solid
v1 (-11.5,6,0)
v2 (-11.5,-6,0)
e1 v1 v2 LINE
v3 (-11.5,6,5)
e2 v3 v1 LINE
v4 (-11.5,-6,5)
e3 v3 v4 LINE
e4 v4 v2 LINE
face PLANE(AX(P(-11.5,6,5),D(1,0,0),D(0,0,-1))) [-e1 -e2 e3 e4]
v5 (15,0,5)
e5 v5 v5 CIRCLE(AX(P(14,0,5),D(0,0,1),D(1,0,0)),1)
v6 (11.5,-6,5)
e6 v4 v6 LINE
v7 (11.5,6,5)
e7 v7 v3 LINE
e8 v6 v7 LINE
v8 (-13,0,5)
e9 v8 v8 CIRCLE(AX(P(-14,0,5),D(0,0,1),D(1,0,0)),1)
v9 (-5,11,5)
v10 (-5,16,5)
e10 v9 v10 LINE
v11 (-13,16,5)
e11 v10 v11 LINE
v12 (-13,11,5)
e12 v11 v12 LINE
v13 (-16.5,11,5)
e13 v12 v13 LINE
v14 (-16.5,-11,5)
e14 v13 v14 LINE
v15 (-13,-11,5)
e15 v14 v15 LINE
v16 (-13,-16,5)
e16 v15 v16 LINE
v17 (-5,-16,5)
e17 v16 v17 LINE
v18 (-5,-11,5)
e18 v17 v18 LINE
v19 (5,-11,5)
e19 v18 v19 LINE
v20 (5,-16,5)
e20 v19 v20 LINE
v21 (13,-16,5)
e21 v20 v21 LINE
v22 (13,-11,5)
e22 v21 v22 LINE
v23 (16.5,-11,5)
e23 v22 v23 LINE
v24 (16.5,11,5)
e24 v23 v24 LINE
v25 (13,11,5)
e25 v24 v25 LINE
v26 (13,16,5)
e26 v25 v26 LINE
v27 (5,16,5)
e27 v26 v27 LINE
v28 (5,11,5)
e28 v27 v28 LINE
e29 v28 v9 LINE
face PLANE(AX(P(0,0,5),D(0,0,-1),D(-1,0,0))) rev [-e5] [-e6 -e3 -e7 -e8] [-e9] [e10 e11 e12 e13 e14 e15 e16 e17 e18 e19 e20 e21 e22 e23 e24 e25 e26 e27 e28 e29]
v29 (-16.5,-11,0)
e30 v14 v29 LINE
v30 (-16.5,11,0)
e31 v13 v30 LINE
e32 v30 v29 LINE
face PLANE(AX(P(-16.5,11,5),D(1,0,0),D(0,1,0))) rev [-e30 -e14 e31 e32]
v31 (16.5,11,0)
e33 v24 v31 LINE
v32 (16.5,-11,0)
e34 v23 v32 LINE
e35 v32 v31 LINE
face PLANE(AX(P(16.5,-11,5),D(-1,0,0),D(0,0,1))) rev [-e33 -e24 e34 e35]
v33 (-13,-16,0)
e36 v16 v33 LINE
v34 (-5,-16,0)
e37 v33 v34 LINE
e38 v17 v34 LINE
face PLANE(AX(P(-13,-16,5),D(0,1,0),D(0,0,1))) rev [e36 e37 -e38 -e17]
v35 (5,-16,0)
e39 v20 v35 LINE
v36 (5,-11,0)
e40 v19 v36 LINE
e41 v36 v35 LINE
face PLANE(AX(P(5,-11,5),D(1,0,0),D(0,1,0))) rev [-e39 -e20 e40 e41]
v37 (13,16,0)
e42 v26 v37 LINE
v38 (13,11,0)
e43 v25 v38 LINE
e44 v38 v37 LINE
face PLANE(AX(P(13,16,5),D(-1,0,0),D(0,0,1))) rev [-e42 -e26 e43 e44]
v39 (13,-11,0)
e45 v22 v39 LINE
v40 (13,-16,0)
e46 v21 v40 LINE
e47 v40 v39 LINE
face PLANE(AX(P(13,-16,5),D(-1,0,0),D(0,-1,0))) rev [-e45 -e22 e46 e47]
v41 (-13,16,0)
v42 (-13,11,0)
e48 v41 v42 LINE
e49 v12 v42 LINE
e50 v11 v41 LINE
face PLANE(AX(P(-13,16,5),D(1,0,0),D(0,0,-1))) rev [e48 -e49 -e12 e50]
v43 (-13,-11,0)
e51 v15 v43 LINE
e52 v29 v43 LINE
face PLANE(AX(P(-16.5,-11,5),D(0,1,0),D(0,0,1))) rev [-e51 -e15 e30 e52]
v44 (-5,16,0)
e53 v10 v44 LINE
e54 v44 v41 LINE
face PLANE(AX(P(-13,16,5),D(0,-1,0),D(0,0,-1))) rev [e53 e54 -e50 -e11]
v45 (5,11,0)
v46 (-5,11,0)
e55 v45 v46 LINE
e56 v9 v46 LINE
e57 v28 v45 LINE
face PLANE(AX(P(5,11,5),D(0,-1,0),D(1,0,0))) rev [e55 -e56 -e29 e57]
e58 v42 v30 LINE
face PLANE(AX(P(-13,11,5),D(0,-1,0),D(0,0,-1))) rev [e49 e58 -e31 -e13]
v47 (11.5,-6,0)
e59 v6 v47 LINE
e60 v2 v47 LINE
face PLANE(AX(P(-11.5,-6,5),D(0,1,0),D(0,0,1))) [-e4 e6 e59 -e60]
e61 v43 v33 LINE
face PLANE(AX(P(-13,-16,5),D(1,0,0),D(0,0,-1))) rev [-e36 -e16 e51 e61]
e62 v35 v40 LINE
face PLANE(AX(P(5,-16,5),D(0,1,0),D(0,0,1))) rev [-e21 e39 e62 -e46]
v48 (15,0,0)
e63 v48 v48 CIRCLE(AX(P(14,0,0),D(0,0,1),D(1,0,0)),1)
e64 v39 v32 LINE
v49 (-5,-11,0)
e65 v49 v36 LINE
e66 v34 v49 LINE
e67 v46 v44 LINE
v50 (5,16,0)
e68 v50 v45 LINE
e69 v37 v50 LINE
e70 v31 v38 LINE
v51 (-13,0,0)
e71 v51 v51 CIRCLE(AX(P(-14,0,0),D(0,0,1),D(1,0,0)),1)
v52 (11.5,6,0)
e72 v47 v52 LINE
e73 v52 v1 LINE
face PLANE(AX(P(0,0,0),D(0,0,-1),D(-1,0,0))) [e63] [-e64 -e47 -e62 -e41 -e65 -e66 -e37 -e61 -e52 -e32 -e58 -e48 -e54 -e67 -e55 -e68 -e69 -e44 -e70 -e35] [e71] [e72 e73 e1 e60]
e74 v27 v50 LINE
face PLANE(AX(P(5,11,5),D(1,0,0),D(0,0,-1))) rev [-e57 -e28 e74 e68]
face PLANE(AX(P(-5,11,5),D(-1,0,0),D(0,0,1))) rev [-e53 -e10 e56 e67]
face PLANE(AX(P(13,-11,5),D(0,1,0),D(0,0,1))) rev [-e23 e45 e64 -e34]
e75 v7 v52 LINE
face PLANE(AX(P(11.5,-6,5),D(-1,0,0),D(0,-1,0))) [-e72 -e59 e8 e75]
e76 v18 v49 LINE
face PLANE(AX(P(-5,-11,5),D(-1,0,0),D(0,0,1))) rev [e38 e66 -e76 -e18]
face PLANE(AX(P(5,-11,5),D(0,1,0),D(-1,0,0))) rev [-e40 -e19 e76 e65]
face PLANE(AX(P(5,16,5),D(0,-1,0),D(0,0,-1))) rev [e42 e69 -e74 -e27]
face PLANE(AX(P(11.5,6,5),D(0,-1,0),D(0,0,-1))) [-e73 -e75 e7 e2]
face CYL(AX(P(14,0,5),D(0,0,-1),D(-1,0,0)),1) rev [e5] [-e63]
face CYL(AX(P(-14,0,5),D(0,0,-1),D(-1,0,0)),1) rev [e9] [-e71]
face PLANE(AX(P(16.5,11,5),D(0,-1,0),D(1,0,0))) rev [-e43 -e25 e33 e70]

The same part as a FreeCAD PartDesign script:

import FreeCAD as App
import Part
import Sketcher

V = App.Vector
Q = App.Units.Quantity


def add_polygon(sketch, points):
    """Adds a closed chain of lines whose ends are joined by coincident constraints."""
    first, n = sketch.GeometryCount, len(points)
    for a, b in zip(points, points[1:] + points[:1]):
        sketch.addGeometry(Part.LineSegment(App.Vector(*a, 0), App.Vector(*b, 0)), False)
    for i in range(n):
        sketch.addConstraint(Sketcher.Constraint("Coincident", first + i, 2, first + (i + 1) % n, 1))

doc = App.newDocument("Part")
body = doc.addObject("PartDesign::Body", "Body")

sketch1 = doc.addObject("Sketcher::SketchObject", "Sketch")
body.addObject(sketch1)
sketch1.AttachmentSupport = (doc.XY_Plane, [""])
sketch1.MapMode = "FlatFace"
add_polygon(sketch1, [(5, 16), (5, 11), (-5, 11), (-5, 16), (-13, 16), (-13, 11), (-16.5, 11), (-16.5, -11), (-13, -11), (-13, -16), (-5, -16), (-5, -11), (5, -11), (5, -16), (13, -16), (13, -11), (16.5, -11), (16.5, 11), (13, 11), (13, 16)])
sketch1.addGeometry(Part.Circle(V(14, 0, 0), V(0, 0, 1), 1), False)
add_polygon(sketch1, [(-11.5, -6), (-11.5, 6), (11.5, 6), (11.5, -6)])
sketch1.addGeometry(Part.Circle(V(-14, 0, 0), V(0, 0, 1), 1), False)
sketch1.addConstraint([
    Sketcher.Constraint("Vertical", 0),
    Sketcher.Constraint("Horizontal", 1),
    Sketcher.Constraint("Vertical", 2),
    Sketcher.Constraint("Horizontal", 3),
    Sketcher.Constraint("Vertical", 4),
    Sketcher.Constraint("Horizontal", 5),
    Sketcher.Constraint("Vertical", 6),
    Sketcher.Constraint("Horizontal", 7),
    Sketcher.Constraint("Vertical", 8),
    Sketcher.Constraint("Horizontal", 9),
    Sketcher.Constraint("Vertical", 10),
    Sketcher.Constraint("Horizontal", 11),
    Sketcher.Constraint("Vertical", 12),
    Sketcher.Constraint("Horizontal", 13),
    Sketcher.Constraint("Vertical", 14),
    Sketcher.Constraint("Horizontal", 15),
    Sketcher.Constraint("Vertical", 16),
    Sketcher.Constraint("Horizontal", 17),
    Sketcher.Constraint("Vertical", 18),
    Sketcher.Constraint("Horizontal", 19),
    Sketcher.Constraint("Vertical", 21),
    Sketcher.Constraint("Horizontal", 22),
    Sketcher.Constraint("Vertical", 23),
    Sketcher.Constraint("Horizontal", 24),
    Sketcher.Constraint("Equal", 20, 25),
    Sketcher.Constraint("Symmetric", 20, 3, 25, 3, -1, 1),
    Sketcher.Constraint("Symmetric", 0, 2, 10, 2, -1, 1),
    Sketcher.Constraint("Symmetric", 2, 2, 12, 2, -1, 1),
    Sketcher.Constraint("Symmetric", 4, 2, 14, 2, -1, 1),
    Sketcher.Constraint("Symmetric", 6, 2, 16, 2, -1, 1),
    Sketcher.Constraint("Symmetric", 8, 2, 18, 2, -1, 1),
    Sketcher.Constraint("Symmetric", 21, 2, 23, 2, -1, 1),
    Sketcher.Constraint("Symmetric", 9, 2, 12, 2, -2),
    Sketcher.Constraint("Symmetric", 7, 2, 14, 2, -2),
    Sketcher.Constraint("PointOnObject", 20, 3, -1),
    Sketcher.Constraint("Horizontal", 1, 2, 4, 2),
    Sketcher.Constraint("Diameter", 20, Q("2 mm")),
    Sketcher.Constraint("DistanceX", 1, 2, 1, 1, Q("10 mm")),
    Sketcher.Constraint("DistanceX", 3, 2, 3, 1, Q("8 mm")),
    Sketcher.Constraint("DistanceX", 22, 1, 22, 2, Q("23 mm")),
    Sketcher.Constraint("DistanceY", 0, 2, 0, 1, Q("5 mm")),
    Sketcher.Constraint("DistanceY", 6, 2, 6, 1, Q("22 mm")),
    Sketcher.Constraint("DistanceY", 21, 1, 21, 2, Q("12 mm")),
    Sketcher.Constraint("DistanceX", 5, 2, 5, 1, Q("3.5 mm")),
    Sketcher.Constraint("DistanceX", -1, 1, 20, 3, Q("14 mm")),
])
pad1 = doc.addObject("PartDesign::Pad", "Pad")
body.addObject(pad1)
pad1.Profile = sketch1
pad1.Length = 5

doc.recompute()
